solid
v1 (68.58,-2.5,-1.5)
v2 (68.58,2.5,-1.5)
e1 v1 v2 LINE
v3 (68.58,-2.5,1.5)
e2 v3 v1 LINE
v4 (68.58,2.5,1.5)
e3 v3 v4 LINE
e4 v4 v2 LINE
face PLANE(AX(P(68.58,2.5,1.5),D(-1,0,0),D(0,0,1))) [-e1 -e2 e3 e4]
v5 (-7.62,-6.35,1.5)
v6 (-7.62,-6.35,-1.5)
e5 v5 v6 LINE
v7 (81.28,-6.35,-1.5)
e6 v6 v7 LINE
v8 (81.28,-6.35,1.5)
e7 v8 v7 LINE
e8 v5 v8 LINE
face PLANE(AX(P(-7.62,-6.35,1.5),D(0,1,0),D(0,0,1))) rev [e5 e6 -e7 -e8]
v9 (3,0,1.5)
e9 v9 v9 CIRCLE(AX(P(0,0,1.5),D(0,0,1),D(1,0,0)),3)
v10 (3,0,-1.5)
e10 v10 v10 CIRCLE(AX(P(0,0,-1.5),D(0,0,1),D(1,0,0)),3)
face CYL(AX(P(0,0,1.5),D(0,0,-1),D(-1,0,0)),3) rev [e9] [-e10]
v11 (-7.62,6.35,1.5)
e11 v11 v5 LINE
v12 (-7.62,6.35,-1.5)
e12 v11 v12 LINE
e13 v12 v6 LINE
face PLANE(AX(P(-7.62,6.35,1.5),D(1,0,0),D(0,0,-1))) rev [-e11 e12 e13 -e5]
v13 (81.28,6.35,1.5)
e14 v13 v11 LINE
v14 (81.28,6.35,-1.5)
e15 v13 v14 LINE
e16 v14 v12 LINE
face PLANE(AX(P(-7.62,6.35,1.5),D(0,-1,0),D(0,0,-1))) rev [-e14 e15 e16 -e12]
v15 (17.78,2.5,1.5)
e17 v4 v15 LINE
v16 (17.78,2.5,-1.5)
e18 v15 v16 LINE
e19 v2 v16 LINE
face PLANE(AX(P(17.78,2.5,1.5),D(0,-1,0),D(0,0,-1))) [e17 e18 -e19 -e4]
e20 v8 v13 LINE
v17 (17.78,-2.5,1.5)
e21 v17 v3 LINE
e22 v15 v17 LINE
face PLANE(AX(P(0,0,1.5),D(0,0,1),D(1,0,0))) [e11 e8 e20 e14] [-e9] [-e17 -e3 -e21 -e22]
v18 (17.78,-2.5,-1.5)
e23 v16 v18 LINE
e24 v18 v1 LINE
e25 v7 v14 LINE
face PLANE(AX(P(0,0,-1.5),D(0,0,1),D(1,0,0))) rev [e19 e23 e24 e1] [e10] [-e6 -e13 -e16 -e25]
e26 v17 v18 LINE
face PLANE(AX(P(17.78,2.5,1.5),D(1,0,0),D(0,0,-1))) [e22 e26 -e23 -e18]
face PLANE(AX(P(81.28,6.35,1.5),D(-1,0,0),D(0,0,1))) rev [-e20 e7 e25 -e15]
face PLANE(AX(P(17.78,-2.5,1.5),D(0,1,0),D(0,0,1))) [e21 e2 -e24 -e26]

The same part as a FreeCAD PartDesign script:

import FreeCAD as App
import Part
import Sketcher

V = App.Vector


def add_polygon(sketch, points):
    """Adds a closed chain of lines whose ends are joined by coincident constraints."""
    first, n = sketch.GeometryCount, len(points)
    for a, b in zip(points, points[1:] + points[:1]):
        sketch.addGeometry(Part.LineSegment(App.Vector(*a, 0), App.Vector(*b, 0)), False)
    for i in range(n):
        sketch.addConstraint(Sketcher.Constraint("Coincident", first + i, 2, first + (i + 1) % n, 1))

doc = App.newDocument("Part")
body = doc.addObject("PartDesign::Body", "Body")

# Sketch on XY plane
sketch1 = body.newObject("Sketcher::SketchObject", "Sketch")
sketch1.AttachmentSupport = (doc.getObject("XY_Plane"), [""])
sketch1.MapMode = "FlatFace"
add_polygon(sketch1, [(-7.6, 6.3), (-7.6, -6.3), (81.3, -6.3), (81.3, 6.3)])  # lines 0-3
sketch1.addGeometry(Part.Circle(V(0, 0, 0), V(0, 0, 1), 3), False)  # 4
add_polygon(sketch1, [(68.6, -2.5), (17.8, -2.5), (17.8, 2.5), (68.6, 2.5)])  # lines 5-8
sketch1.addConstraint([
    Sketcher.Constraint("Vertical", 0),
    Sketcher.Constraint("Horizontal", 1),
    Sketcher.Constraint("Vertical", 2),
    Sketcher.Constraint("Horizontal", 3),
    Sketcher.Constraint("Horizontal", 5),
    Sketcher.Constraint("Vertical", 6),
    Sketcher.Constraint("Horizontal", 7),
    Sketcher.Constraint("Vertical", 8),
    Sketcher.Constraint("Coincident", 4, 3, -1, 1),
    Sketcher.Constraint("Diameter", 4, 6.0),
    Sketcher.Constraint("DistanceY", 6, 1, 6, 2, 5.0),
    Sketcher.Constraint("DistanceX", 1, 1, 1, 2, 88.9),
    Sketcher.Constraint("DistanceX", 5, 2, 5, 1, 50.8),
    Sketcher.Constraint("DistanceY", 0, 2, 0, 1, 12.7),
    Sketcher.Constraint("DistanceY", 5, 2, -1, 1, 2.5),
    Sketcher.Constraint("DistanceX", 0, 2, 5, 2, 25.4),
    Sketcher.Constraint("DistanceX", 0, 2, -1, 1, 7.62),
    Sketcher.Constraint("DistanceY", 0, 2, -1, 1, 6.35),
])
pad1 = body.newObject("PartDesign::Pad", "Pad")
pad1.Profile = sketch1
pad1.Length = 3
pad1.Midplane = True

doc.recompute()
